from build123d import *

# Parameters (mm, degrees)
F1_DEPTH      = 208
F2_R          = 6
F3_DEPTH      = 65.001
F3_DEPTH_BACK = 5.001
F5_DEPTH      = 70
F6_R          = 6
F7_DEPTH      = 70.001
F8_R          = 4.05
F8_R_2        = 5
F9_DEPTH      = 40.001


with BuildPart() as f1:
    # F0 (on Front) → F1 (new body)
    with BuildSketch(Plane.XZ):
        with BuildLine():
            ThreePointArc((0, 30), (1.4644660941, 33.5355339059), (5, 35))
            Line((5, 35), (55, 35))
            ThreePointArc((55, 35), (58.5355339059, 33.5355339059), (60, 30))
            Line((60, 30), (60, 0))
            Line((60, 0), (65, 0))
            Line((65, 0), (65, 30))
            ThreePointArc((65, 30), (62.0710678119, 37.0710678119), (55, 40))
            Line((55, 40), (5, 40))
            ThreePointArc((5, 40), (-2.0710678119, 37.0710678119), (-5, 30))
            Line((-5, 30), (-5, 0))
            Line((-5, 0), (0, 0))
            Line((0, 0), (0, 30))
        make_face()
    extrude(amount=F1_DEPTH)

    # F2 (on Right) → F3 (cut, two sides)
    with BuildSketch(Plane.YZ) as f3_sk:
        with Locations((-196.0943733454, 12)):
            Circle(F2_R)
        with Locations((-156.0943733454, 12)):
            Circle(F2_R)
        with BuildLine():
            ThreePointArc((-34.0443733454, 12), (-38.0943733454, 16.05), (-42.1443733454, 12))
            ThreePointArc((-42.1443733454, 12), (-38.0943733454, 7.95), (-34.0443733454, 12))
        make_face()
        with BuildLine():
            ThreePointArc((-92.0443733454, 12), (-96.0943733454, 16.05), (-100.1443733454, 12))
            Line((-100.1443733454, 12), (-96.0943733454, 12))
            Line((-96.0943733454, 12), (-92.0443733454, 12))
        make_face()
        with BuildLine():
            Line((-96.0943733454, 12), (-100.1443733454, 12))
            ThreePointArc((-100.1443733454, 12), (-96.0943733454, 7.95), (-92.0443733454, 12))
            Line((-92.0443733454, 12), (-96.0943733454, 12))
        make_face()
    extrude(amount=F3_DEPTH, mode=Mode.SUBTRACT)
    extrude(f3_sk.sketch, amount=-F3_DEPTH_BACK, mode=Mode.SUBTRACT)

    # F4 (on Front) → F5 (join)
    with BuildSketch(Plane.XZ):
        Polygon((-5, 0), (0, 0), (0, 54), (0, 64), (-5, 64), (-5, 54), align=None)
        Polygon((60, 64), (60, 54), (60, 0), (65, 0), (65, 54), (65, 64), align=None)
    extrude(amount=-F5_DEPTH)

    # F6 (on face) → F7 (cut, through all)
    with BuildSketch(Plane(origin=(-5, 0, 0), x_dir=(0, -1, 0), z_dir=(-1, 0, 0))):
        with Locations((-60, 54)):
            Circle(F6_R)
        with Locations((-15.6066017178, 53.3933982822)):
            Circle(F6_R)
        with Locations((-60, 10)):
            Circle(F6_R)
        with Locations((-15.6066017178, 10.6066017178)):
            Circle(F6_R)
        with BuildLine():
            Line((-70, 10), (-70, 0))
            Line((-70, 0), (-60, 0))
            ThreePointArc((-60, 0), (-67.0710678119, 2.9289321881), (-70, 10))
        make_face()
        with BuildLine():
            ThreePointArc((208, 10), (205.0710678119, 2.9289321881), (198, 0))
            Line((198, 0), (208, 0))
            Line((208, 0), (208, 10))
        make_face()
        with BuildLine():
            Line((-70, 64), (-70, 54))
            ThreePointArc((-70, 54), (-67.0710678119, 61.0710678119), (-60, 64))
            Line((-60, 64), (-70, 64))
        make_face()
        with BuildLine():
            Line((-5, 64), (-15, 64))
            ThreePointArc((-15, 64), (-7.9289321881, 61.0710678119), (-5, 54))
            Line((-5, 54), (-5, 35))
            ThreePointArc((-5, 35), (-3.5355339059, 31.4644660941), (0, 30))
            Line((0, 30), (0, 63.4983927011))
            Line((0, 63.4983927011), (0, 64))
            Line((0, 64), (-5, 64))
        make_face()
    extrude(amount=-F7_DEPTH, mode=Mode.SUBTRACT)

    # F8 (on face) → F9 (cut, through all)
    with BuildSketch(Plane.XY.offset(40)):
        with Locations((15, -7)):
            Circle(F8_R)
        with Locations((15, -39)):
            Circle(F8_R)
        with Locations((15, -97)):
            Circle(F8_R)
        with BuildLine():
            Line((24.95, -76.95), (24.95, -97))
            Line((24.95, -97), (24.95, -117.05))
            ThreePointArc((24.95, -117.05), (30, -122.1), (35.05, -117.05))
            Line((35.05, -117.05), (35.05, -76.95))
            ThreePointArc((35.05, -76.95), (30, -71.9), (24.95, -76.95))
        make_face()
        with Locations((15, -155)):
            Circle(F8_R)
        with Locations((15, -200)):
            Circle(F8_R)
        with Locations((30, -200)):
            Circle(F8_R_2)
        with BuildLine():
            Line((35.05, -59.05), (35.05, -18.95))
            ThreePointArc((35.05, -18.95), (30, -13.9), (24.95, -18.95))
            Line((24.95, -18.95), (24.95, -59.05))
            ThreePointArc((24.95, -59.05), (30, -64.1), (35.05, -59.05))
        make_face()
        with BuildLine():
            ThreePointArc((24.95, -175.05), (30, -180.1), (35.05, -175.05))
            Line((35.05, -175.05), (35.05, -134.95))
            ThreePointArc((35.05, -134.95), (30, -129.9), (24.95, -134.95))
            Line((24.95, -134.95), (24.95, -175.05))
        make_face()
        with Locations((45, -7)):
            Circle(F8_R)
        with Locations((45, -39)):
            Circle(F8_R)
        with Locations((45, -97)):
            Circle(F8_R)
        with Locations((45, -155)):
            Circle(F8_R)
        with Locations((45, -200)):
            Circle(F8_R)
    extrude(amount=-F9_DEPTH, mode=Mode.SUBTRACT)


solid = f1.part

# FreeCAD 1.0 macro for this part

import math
import FreeCAD as App
import Part
import Sketcher
from FreeCAD import Vector
Q = App.Units.Quantity


def add_polygon(sketch, points):
    """Adds a closed chain of lines whose ends are joined by coincident constraints."""
    first, n = sketch.GeometryCount, len(points)
    for a, b in zip(points, points[1:] + points[:1]):
        sketch.addGeometry(Part.LineSegment(App.Vector(*a, 0), App.Vector(*b, 0)), False)
    for i in range(n):
        sketch.addConstraint(Sketcher.Constraint("Coincident", first + i, 2, first + (i + 1) % n, 1))

doc = App.newDocument("Part")
body = doc.addObject("PartDesign::Body", "Body")

sketch1 = body.newObject("Sketcher::SketchObject", "Sketch")
sketch1.AttachmentSupport = (doc.getObject("XZ_Plane"), [""])
sketch1.MapMode = "FlatFace"
sketch1.addGeometry(Part.ArcOfCircle(Part.Circle(Vector(5, 30, 0), Vector(0, 0, 1), 5), math.radians(90), math.radians(180)), False)
sketch1.addGeometry(Part.LineSegment(Vector(5, 35, 0), Vector(55, 35, 0)), False)
sketch1.addGeometry(Part.ArcOfCircle(Part.Circle(Vector(55, 30, 0), Vector(0, 0, 1), 5), math.radians(0), math.radians(90)), False)
sketch1.addGeometry(Part.LineSegment(Vector(60, 30, 0), Vector(60, 0, 0)), False)
sketch1.addGeometry(Part.LineSegment(Vector(60, 0, 0), Vector(65, 0, 0)), False)
sketch1.addGeometry(Part.LineSegment(Vector(65, 0, 0), Vector(65, 30, 0)), False)
sketch1.addGeometry(Part.ArcOfCircle(Part.Circle(Vector(55, 30, 0), Vector(0, 0, 1), 10), math.radians(0), math.radians(90)), False)
sketch1.addGeometry(Part.LineSegment(Vector(55, 40, 0), Vector(5, 40, 0)), False)
sketch1.addGeometry(Part.ArcOfCircle(Part.Circle(Vector(5, 30, 0), Vector(0, 0, 1), 10), math.radians(90), math.radians(180)), False)
sketch1.addGeometry(Part.LineSegment(Vector(-5, 30, 0), Vector(-5, 0, 0)), False)
sketch1.addGeometry(Part.LineSegment(Vector(-5, 0, 0), Vector(0, 0, 0)), False)
sketch1.addGeometry(Part.LineSegment(Vector(0, 0, 0), Vector(0, 30, 0)), False)
sketch1.addConstraint(Sketcher.Constraint("Tangent", 0, 1, 1, 1))
sketch1.addConstraint(Sketcher.Constraint("Tangent", 1, 2, 2, 2))
sketch1.addConstraint(Sketcher.Constraint("Tangent", 2, 1, 3, 1))
sketch1.addConstraint(Sketcher.Constraint("Coincident", 3, 2, 4, 1))
sketch1.addConstraint(Sketcher.Constraint("Coincident", 4, 2, 5, 1))
sketch1.addConstraint(Sketcher.Constraint("Tangent", 5, 2, 6, 1))
sketch1.addConstraint(Sketcher.Constraint("Tangent", 6, 2, 7, 1))
sketch1.addConstraint(Sketcher.Constraint("Tangent", 7, 2, 8, 1))
sketch1.addConstraint(Sketcher.Constraint("Tangent", 8, 2, 9, 1))
sketch1.addConstraint(Sketcher.Constraint("Coincident", 9, 2, 10, 1))
sketch1.addConstraint(Sketcher.Constraint("Coincident", 10, 2, 11, 1))
sketch1.addConstraint(Sketcher.Constraint("Tangent", 11, 2, 0, 2))
sketch1.addConstraint(Sketcher.Constraint("Horizontal", 1))
sketch1.addConstraint(Sketcher.Constraint("Vertical", 3))
sketch1.addConstraint(Sketcher.Constraint("Horizontal", 4))
sketch1.addConstraint(Sketcher.Constraint("Vertical", 5))
sketch1.addConstraint(Sketcher.Constraint("Horizontal", 7))
sketch1.addConstraint(Sketcher.Constraint("Vertical", 9))
sketch1.addConstraint(Sketcher.Constraint("Horizontal", 10))
sketch1.addConstraint(Sketcher.Constraint("Vertical", 11))
sketch1.addConstraint(Sketcher.Constraint("Coincident", 10, 2, -1, 1))
sketch1.addConstraint(Sketcher.Constraint("Coincident", 6, 3, 2, 3))
sketch1.addConstraint(Sketcher.Constraint("Coincident", 8, 3, 0, 3))
sketch1.addConstraint(Sketcher.Constraint("Equal", 0, 2))
sketch1.addConstraint(Sketcher.Constraint("PointOnObject", 3, 2, -1))
sketch1.addConstraint(Sketcher.Constraint("Radius", 0, Q("5 mm")))
sketch1.addConstraint(Sketcher.Constraint("Radius", 6, Q("10 mm")))
sketch1.addConstraint(Sketcher.Constraint("DistanceX", 1, 1, 1, 2, Q("50 mm")))
sketch1.addConstraint(Sketcher.Constraint("DistanceY", 3, 2, 3, 1, Q("30 mm")))
pad1 = body.newObject("PartDesign::Pad", "Pad")
pad1.Profile = sketch1
pad1.Length = 208

sketch2 = body.newObject("Sketcher::SketchObject", "Sketch001")
sketch2.AttachmentSupport = (doc.getObject("YZ_Plane"), [""])
sketch2.MapMode = "FlatFace"
sketch2.addGeometry(Part.Circle(Vector(-196.1, 12, 0), Vector(0, 0, 1), 6), False)
sketch2.addGeometry(Part.Circle(Vector(-156.1, 12, 0), Vector(0, 0, 1), 6), False)
sketch2.addGeometry(Part.Circle(Vector(-38.1, 12, 0), Vector(0, 0, 1), 4), False)
sketch2.addGeometry(Part.Circle(Vector(-96.1, 12, 0), Vector(0, 0, 1), 4), False)
sketch2.addConstraint(Sketcher.Constraint("Equal", 0, 1))
sketch2.addConstraint(Sketcher.Constraint("Equal", 2, 3))
sketch2.addConstraint(Sketcher.Constraint("Horizontal", 0, 3, 1, 3))
sketch2.addConstraint(Sketcher.Constraint("Horizontal", 1, 3, 2, 3))
sketch2.addConstraint(Sketcher.Constraint("Horizontal", 2, 3, 3, 3))
sketch2.addConstraint(Sketcher.Constraint("Diameter", 0, Q("12 mm")))
sketch2.addConstraint(Sketcher.Constraint("Diameter", 2, Q("8.1 mm")))
sketch2.addConstraint(Sketcher.Constraint("DistanceY", -1, 1, 0, 3, Q("12 mm")))
sketch2.addConstraint(Sketcher.Constraint("DistanceX", 0, 3, 1, 3, Q("40 mm")))
sketch2.addConstraint(Sketcher.Constraint("DistanceX", 1, 3, 2, 3, Q("118 mm")))
sketch2.addConstraint(Sketcher.Constraint("DistanceX", 3, 3, 2, 3, Q("58 mm")))
sketch2.addConstraint(Sketcher.Constraint("DistanceX", 0, 3, -1, 1, Q("196.094373 mm")))
pocket1 = body.newObject("PartDesign::Pocket", "Pocket")
pocket1.Profile = sketch2
pocket1.Type = "ThroughAll"
pocket1.Midplane = True

sketch3 = body.newObject("Sketcher::SketchObject", "Sketch002")
sketch3.AttachmentSupport = (doc.getObject("XZ_Plane"), [""])
sketch3.MapMode = "FlatFace"
add_polygon(sketch3, [(-5, 0), (0, 0), (0, 64), (-5, 64)])
add_polygon(sketch3, [(60, 64), (60, 0), (65, 0), (65, 64)])
sketch3.addConstraint(Sketcher.Constraint("Horizontal", 0))
sketch3.addConstraint(Sketcher.Constraint("Vertical", 1))
sketch3.addConstraint(Sketcher.Constraint("Horizontal", 2))
sketch3.addConstraint(Sketcher.Constraint("Vertical", 3))
sketch3.addConstraint(Sketcher.Constraint("Vertical", 4))
sketch3.addConstraint(Sketcher.Constraint("Horizontal", 5))
sketch3.addConstraint(Sketcher.Constraint("Vertical", 6))
sketch3.addConstraint(Sketcher.Constraint("Horizontal", 7))
sketch3.addConstraint(Sketcher.Constraint("Coincident", 0, 2, -1, 1))
sketch3.addConstraint(Sketcher.Constraint("PointOnObject", 4, 2, -1))
sketch3.addConstraint(Sketcher.Constraint("Horizontal", 2, 2, 6, 2))
sketch3.addConstraint(Sketcher.Constraint("Equal", 2, 5))
sketch3.addConstraint(Sketcher.Constraint("DistanceX", 0, 1, 0, 2, Q("5 mm")))
sketch3.addConstraint(Sketcher.Constraint("DistanceY", 1, 1, 1, 2, Q("64 mm")))
sketch3.addConstraint(Sketcher.Constraint("DistanceX", -1, 1, 4, 2, Q("60 mm")))
pad2 = body.newObject("PartDesign::Pad", "Pad001")
pad2.Profile = sketch3
pad2.Length = 70
pad2.Reversed = True

sketch4 = body.newObject("Sketcher::SketchObject", "Sketch003")
sketch4.AttachmentSupport = (doc.getObject("YZ_Plane"), [""])
sketch4.MapMode = "FlatFace"
sketch4.AttachmentOffset = App.Placement(Vector(0, 0, -5), App.Rotation())
sketch4.addGeometry(Part.Circle(Vector(60, 54, 0), Vector(0, 0, 1), 6), False)
sketch4.addGeometry(Part.Circle(Vector(16, 53, 0), Vector(0, 0, 1), 6), False)
sketch4.addGeometry(Part.Circle(Vector(60, 10, 0), Vector(0, 0, 1), 6), False)
sketch4.addGeometry(Part.Circle(Vector(16, 11, 0), Vector(0, 0, 1), 6), False)
sketch4.addGeometry(Part.LineSegment(Vector(70, 10, 0), Vector(70, 0, 0)), False)
sketch4.addGeometry(Part.LineSegment(Vector(70, 0, 0), Vector(60, 0, 0)), False)
sketch4.addGeometry(Part.ArcOfCircle(Part.Circle(Vector(60, 10, 0), Vector(0, 0, 1), 10), math.radians(-90), math.radians(0)), False)
sketch4.addGeometry(Part.ArcOfCircle(Part.Circle(Vector(-198, 10, 0), Vector(0, 0, 1), 10), math.radians(180), math.radians(270)), False)
sketch4.addGeometry(Part.LineSegment(Vector(-198, 0, 0), Vector(-208, 0, 0)), False)
sketch4.addGeometry(Part.LineSegment(Vector(-208, 0, 0), Vector(-208, 10, 0)), False)
sketch4.addGeometry(Part.LineSegment(Vector(70, 64, 0), Vector(70, 54, 0)), False)
sketch4.addGeometry(Part.ArcOfCircle(Part.Circle(Vector(60, 54, 0), Vector(0, 0, 1), 10), math.radians(0), math.radians(90)), False)
sketch4.addGeometry(Part.LineSegment(Vector(60, 64, 0), Vector(70, 64, 0)), False)
sketch4.addGeometry(Part.ArcOfCircle(Part.Circle(Vector(15, 54, 0), Vector(0, 0, 1), 10), math.radians(90), math.radians(180)), False)
sketch4.addGeometry(Part.LineSegment(Vector(5, 54, 0), Vector(5, 35, 0)), False)
sketch4.addGeometry(Part.ArcOfCircle(Part.Circle(Vector(0, 35, 0), Vector(0, 0, 1), 5), math.radians(-90), math.radians(0)), False)
sketch4.addGeometry(Part.LineSegment(Vector(0, 30, 0), Vector(0, 64, 0)), False)
sketch4.addGeometry(Part.LineSegment(Vector(0, 64, 0), Vector(15, 64, 0)), False)
sketch4.addConstraint(Sketcher.Constraint("Coincident", 4, 2, 5, 1))
sketch4.addConstraint(Sketcher.Constraint("Tangent", 5, 2, 6, 1))
sketch4.addConstraint(Sketcher.Constraint("Tangent", 6, 2, 4, 1))
sketch4.addConstraint(Sketcher.Constraint("Tangent", 7, 2, 8, 1))
sketch4.addConstraint(Sketcher.Constraint("Coincident", 8, 2, 9, 1))
sketch4.addConstraint(Sketcher.Constraint("Tangent", 9, 2, 7, 1))
sketch4.addConstraint(Sketcher.Constraint("Tangent", 10, 2, 11, 1))
sketch4.addConstraint(Sketcher.Constraint("Tangent", 11, 2, 12, 1))
sketch4.addConstraint(Sketcher.Constraint("Coincident", 12, 2, 10, 1))
sketch4.addConstraint(Sketcher.Constraint("Tangent", 13, 2, 14, 1))
sketch4.addConstraint(Sketcher.Constraint("Tangent", 14, 2, 15, 2))
sketch4.addConstraint(Sketcher.Constraint("Coincident", 15, 1, 16, 1))
sketch4.addConstraint(Sketcher.Constraint("Coincident", 16, 2, 17, 1))
sketch4.addConstraint(Sketcher.Constraint("Tangent", 17, 2, 13, 1))
sketch4.addConstraint(Sketcher.Constraint("Vertical", 4))
sketch4.addConstraint(Sketcher.Constraint("Horizontal", 5))
sketch4.addConstraint(Sketcher.Constraint("Horizontal", 8))
sketch4.addConstraint(Sketcher.Constraint("Vertical", 9))
sketch4.addConstraint(Sketcher.Constraint("Vertical", 10))
sketch4.addConstraint(Sketcher.Constraint("Horizontal", 12))
sketch4.addConstraint(Sketcher.Constraint("Vertical", 14))
sketch4.addConstraint(Sketcher.Constraint("Vertical", 16))
sketch4.addConstraint(Sketcher.Constraint("Horizontal", 17))
sketch4.addConstraint(Sketcher.Constraint("Coincident", 6, 3, 2, 3))
sketch4.addConstraint(Sketcher.Constraint("Coincident", 11, 3, 0, 3))
sketch4.addConstraint(Sketcher.Constraint("Equal", 0, 1))
sketch4.addConstraint(Sketcher.Constraint("Equal", 1, 2))
sketch4.addConstraint(Sketcher.Constraint("Equal", 2, 3))
sketch4.addConstraint(Sketcher.Constraint("Equal", 6, 7))
sketch4.addConstraint(Sketcher.Constraint("Equal", 7, 11))
sketch4.addConstraint(Sketcher.Constraint("Equal", 11, 13))
sketch4.addConstraint(Sketcher.Constraint("PointOnObject", 15, 3, -2))
sketch4.addConstraint(Sketcher.Constraint("PointOnObject", 4, 2, -1))
sketch4.addConstraint(Sketcher.Constraint("PointOnObject", 7, 2, -1))
sketch4.addConstraint(Sketcher.Constraint("PointOnObject", 15, 1, -2))
sketch4.addConstraint(Sketcher.Constraint("Horizontal", 11, 3, 13, 3))
sketch4.addConstraint(Sketcher.Constraint("Vertical", 0, 3, 2, 3))
sketch4.addConstraint(Sketcher.Constraint("Vertical", 1, 3, 3, 3))
sketch4.addConstraint(Sketcher.Constraint("Diameter", 0, Q("12 mm")))
sketch4.addConstraint(Sketcher.Constraint("Radius", 6, Q("10 mm")))
sketch4.addConstraint(Sketcher.Constraint("Radius", 15, Q("5 mm")))
sketch4.addConstraint(Sketcher.Constraint("DistanceY", 14, 2, 14, 1, Q("19 mm")))
sketch4.addConstraint(Sketcher.Constraint("DistanceX", -1, 1, 0, 3, Q("60 mm")))
sketch4.addConstraint(Sketcher.Constraint("DistanceY", -1, 1, 0, 3, Q("54 mm")))
sketch4.addConstraint(Sketcher.Constraint("DistanceX", 7, 3, -1, 1, Q("198 mm")))
sketch4.addConstraint(Sketcher.Constraint("DistanceX", -1, 1, 1, 3, Q("15.606602 mm")))
sketch4.addConstraint(Sketcher.Constraint("DistanceY", -1, 1, 1, 3, Q("53.393398 mm")))
sketch4.addConstraint(Sketcher.Constraint("DistanceY", -1, 1, 3, 3, Q("10.606602 mm")))
pocket2 = body.newObject("PartDesign::Pocket", "Pocket001")
pocket2.Profile = sketch4
pocket2.Type = "ThroughAll"
pocket2.Reversed = True

sketch5 = body.newObject("Sketcher::SketchObject", "Sketch004")
sketch5.AttachmentSupport = (doc.getObject("XY_Plane"), [""])
sketch5.MapMode = "FlatFace"
sketch5.AttachmentOffset = App.Placement(Vector(0, 0, 40), App.Rotation())
sketch5.addGeometry(Part.Circle(Vector(15, -7, 0), Vector(0, 0, 1), 4), False)
sketch5.addGeometry(Part.Circle(Vector(15, -39, 0), Vector(0, 0, 1), 4), False)
sketch5.addGeometry(Part.Circle(Vector(15, -97, 0), Vector(0, 0, 1), 4), False)
sketch5.addGeometry(Part.LineSegment(Vector(24.9, -77, 0), Vector(24.9, -117, 0)), False)
sketch5.addGeometry(Part.ArcOfCircle(Part.Circle(Vector(30, -117, 0), Vector(0, 0, 1), 5), math.radians(180), math.radians(360)), False)
sketch5.addGeometry(Part.LineSegment(Vector(35, -117, 0), Vector(35, -77, 0)), False)
sketch5.addGeometry(Part.ArcOfCircle(Part.Circle(Vector(30, -77, 0), Vector(0, 0, 1), 5), math.radians(0), math.radians(180)), False)
sketch5.addGeometry(Part.Circle(Vector(15, -155, 0), Vector(0, 0, 1), 4), False)
sketch5.addGeometry(Part.Circle(Vector(15, -200, 0), Vector(0, 0, 1), 4), False)
sketch5.addGeometry(Part.Circle(Vector(30, -200, 0), Vector(0, 0, 1), 5), False)
sketch5.addGeometry(Part.LineSegment(Vector(35, -59, 0), Vector(35, -18.9, 0)), False)
sketch5.addGeometry(Part.ArcOfCircle(Part.Circle(Vector(30, -18.9, 0), Vector(0, 0, 1), 5), math.radians(0), math.radians(180)), False)
sketch5.addGeometry(Part.LineSegment(Vector(24.9, -18.9, 0), Vector(24.9, -59, 0)), False)
sketch5.addGeometry(Part.ArcOfCircle(Part.Circle(Vector(30, -59, 0), Vector(0, 0, 1), 5), math.radians(180), math.radians(360)), False)
sketch5.addGeometry(Part.ArcOfCircle(Part.Circle(Vector(30, -175.1, 0), Vector(0, 0, 1), 5), math.radians(180), math.radians(360)), False)
sketch5.addGeometry(Part.LineSegment(Vector(35, -175.1, 0), Vector(35, -134.9, 0)), False)
sketch5.addGeometry(Part.ArcOfCircle(Part.Circle(Vector(30, -134.9, 0), Vector(0, 0, 1), 5), math.radians(0), math.radians(180)), False)
sketch5.addGeometry(Part.LineSegment(Vector(24.9, -134.9, 0), Vector(24.9, -175.1, 0)), False)
sketch5.addGeometry(Part.Circle(Vector(45, -7, 0), Vector(0, 0, 1), 4), False)
sketch5.addGeometry(Part.Circle(Vector(45, -39, 0), Vector(0, 0, 1), 4), False)
sketch5.addGeometry(Part.Circle(Vector(45, -97, 0), Vector(0, 0, 1), 4), False)
sketch5.addGeometry(Part.Circle(Vector(45, -155, 0), Vector(0, 0, 1), 4), False)
sketch5.addGeometry(Part.Circle(Vector(45, -200, 0), Vector(0, 0, 1), 4), False)
sketch5.addConstraint(Sketcher.Constraint("Tangent", 3, 2, 4, 1))
sketch5.addConstraint(Sketcher.Constraint("Tangent", 4, 2, 5, 1))
sketch5.addConstraint(Sketcher.Constraint("Tangent", 5, 2, 6, 1))
sketch5.addConstraint(Sketcher.Constraint("Tangent", 6, 2, 3, 1))
sketch5.addConstraint(Sketcher.Constraint("Tangent", 10, 2, 11, 1))
sketch5.addConstraint(Sketcher.Constraint("Tangent", 11, 2, 12, 1))
sketch5.addConstraint(Sketcher.Constraint("Tangent", 12, 2, 13, 1))
sketch5.addConstraint(Sketcher.Constraint("Tangent", 13, 2, 10, 1))
sketch5.addConstraint(Sketcher.Constraint("Tangent", 14, 2, 15, 1))
sketch5.addConstraint(Sketcher.Constraint("Tangent", 15, 2, 16, 1))
sketch5.addConstraint(Sketcher.Constraint("Tangent", 16, 2, 17, 1))
sketch5.addConstraint(Sketcher.Constraint("Tangent", 17, 2, 14, 1))
sketch5.addConstraint(Sketcher.Constraint("Vertical", 3))
sketch5.addConstraint(Sketcher.Constraint("Vertical", 5))
sketch5.addConstraint(Sketcher.Constraint("Vertical", 10))
sketch5.addConstraint(Sketcher.Constraint("Vertical", 12))
sketch5.addConstraint(Sketcher.Constraint("Vertical", 15))
sketch5.addConstraint(Sketcher.Constraint("Vertical", 17))
sketch5.addConstraint(Sketcher.Constraint("Equal", 0, 1))
sketch5.addConstraint(Sketcher.Constraint("Equal", 1, 2))
sketch5.addConstraint(Sketcher.Constraint("Equal", 2, 7))
sketch5.addConstraint(Sketcher.Constraint("Equal", 7, 8))
sketch5.addConstraint(Sketcher.Constraint("Equal", 6, 11))
sketch5.addConstraint(Sketcher.Constraint("Equal", 13, 14))
sketch5.addConstraint(Sketcher.Constraint("Equal", 8, 18))
sketch5.addConstraint(Sketcher.Constraint("Equal", 18, 19))
sketch5.addConstraint(Sketcher.Constraint("Equal", 19, 20))
sketch5.addConstraint(Sketcher.Constraint("Equal", 20, 21))
sketch5.addConstraint(Sketcher.Constraint("Equal", 21, 22))
sketch5.addConstraint(Sketcher.Constraint("Horizontal", 8, 3, 9, 3))
sketch5.addConstraint(Sketcher.Constraint("Horizontal", 0, 3, 18, 3))
sketch5.addConstraint(Sketcher.Constraint("Horizontal", 1, 3, 19, 3))
sketch5.addConstraint(Sketcher.Constraint("Horizontal", 2, 3, 20, 3))
sketch5.addConstraint(Sketcher.Constraint("Horizontal", 7, 3, 21, 3))
sketch5.addConstraint(Sketcher.Constraint("Horizontal", 9, 3, 22, 3))
sketch5.addConstraint(Sketcher.Constraint("Vertical", 0, 3, 1, 3))
sketch5.addConstraint(Sketcher.Constraint("Vertical", 1, 3, 2, 3))
sketch5.addConstraint(Sketcher.Constraint("Vertical", 2, 3, 7, 3))
sketch5.addConstraint(Sketcher.Constraint("Vertical", 7, 3, 8, 3))
sketch5.addConstraint(Sketcher.Constraint("Vertical", 6, 3, 9, 3))
sketch5.addConstraint(Sketcher.Constraint("Vertical", 9, 3, 11, 3))
sketch5.addConstraint(Sketcher.Constraint("Vertical", 13, 3, 14, 3))
sketch5.addConstraint(Sketcher.Constraint("Vertical", 18, 3, 19, 3))
sketch5.addConstraint(Sketcher.Constraint("Vertical", 19, 3, 20, 3))
sketch5.addConstraint(Sketcher.Constraint("Vertical", 20, 3, 21, 3))
sketch5.addConstraint(Sketcher.Constraint("Vertical", 21, 3, 22, 3))
sketch5.addConstraint(Sketcher.Constraint("Equal", 5, 10))
sketch5.addConstraint(Sketcher.Constraint("Equal", 12, 15))
sketch5.addConstraint(Sketcher.Constraint("Diameter", 9, Q("10 mm")))
sketch5.addConstraint(Sketcher.Constraint("Diameter", 0, Q("8.1 mm")))
sketch5.addConstraint(Sketcher.Constraint("Radius", 4, Q("5.05 mm")))
sketch5.addConstraint(Sketcher.Constraint("DistanceY", 3, 2, 3, 1, Q("40.1 mm")))
sketch5.addConstraint(Sketcher.Constraint("DistanceX", -1, 1, 0, 3, Q("15 mm")))
sketch5.addConstraint(Sketcher.Constraint("DistanceY", 0, 3, -1, 1, Q("7 mm")))
sketch5.addConstraint(Sketcher.Constraint("DistanceY", 1, 3, -1, 1, Q("39 mm")))
sketch5.addConstraint(Sketcher.Constraint("DistanceY", 2, 3, -1, 1, Q("97 mm")))
sketch5.addConstraint(Sketcher.Constraint("DistanceX", -1, 1, 4, 3, Q("30 mm")))
sketch5.addConstraint(Sketcher.Constraint("DistanceY", 7, 3, -1, 1, Q("155 mm")))
sketch5.addConstraint(Sketcher.Constraint("DistanceY", 8, 3, -1, 1, Q("200 mm")))
sketch5.addConstraint(Sketcher.Constraint("DistanceX", -1, 1, 18, 3, Q("45 mm")))
sketch5.addConstraint(Sketcher.Constraint("DistanceY", 6, 3, 11, 3, Q("58 mm")))
sketch5.addConstraint(Sketcher.Constraint("DistanceY", 14, 3, 4, 3, Q("58 mm")))
sketch5.addConstraint(Sketcher.Constraint("DistanceY", 4, 3, -1, 1, Q("117.05 mm")))
pocket3 = body.newObject("PartDesign::Pocket", "Pocket002")
pocket3.Profile = sketch5
pocket3.Type = "ThroughAll"

doc.recompute()
